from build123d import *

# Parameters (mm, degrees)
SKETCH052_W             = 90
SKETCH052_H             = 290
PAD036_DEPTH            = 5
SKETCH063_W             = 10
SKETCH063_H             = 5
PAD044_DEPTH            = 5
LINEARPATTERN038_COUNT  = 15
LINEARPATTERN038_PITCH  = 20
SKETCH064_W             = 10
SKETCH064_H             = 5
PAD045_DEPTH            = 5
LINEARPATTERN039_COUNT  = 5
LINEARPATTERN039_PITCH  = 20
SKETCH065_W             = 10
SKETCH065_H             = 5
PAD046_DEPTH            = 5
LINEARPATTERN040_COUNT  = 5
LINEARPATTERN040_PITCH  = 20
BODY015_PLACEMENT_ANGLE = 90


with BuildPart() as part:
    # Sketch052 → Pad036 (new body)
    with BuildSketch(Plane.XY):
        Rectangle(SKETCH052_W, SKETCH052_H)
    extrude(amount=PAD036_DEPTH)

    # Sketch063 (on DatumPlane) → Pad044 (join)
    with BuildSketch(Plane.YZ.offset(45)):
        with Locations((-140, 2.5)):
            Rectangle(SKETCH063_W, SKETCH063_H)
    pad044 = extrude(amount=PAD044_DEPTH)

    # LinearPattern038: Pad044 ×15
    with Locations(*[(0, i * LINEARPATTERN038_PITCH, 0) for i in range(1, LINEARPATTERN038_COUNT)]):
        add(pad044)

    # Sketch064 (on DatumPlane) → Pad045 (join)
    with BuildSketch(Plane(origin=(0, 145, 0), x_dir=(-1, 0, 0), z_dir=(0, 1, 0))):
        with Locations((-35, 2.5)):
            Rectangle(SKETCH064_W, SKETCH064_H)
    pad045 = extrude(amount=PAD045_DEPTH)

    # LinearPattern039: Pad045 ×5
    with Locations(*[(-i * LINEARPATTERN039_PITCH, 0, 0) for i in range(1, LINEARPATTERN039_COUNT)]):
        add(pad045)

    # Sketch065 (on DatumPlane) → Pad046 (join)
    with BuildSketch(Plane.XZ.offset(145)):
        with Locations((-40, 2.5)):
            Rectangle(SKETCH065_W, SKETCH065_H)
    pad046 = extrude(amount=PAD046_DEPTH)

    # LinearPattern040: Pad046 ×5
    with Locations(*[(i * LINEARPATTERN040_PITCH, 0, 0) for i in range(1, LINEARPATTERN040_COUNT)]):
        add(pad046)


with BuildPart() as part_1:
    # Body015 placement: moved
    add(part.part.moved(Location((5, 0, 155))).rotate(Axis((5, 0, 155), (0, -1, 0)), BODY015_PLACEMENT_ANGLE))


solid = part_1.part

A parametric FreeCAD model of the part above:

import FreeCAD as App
import Part
import Sketcher

V = App.Vector

doc = App.newDocument("Part")
params = doc.addObject("Spreadsheet::Sheet", "Params")
for row, (alias, value) in enumerate([
    ("sketch1_width", "90 mm"),
    ("sketch1_height", "290 mm"),
    ("pad1_length", "5 mm"),
    ("sketch2_width", "10 mm"),
    ("sketch2_height", "5 mm"),
    ("pad2_length", "5 mm"),
    ("linearpattern_pitch", "20 mm"),
    ("sketch3_width", "10 mm"),
    ("sketch3_height", "5 mm"),
    ("pad3_length", "5 mm"),
    ("linearpattern2_pitch", "20 mm"),
    ("sketch4_width", "10 mm"),
    ("sketch4_height", "5 mm"),
    ("pad4_length", "5 mm"),
    ("linearpattern3_pitch", "20 mm"),
], start=1):
    params.set(f"A{row}", alias)
    params.set(f"B{row}", "=" + value)
    params.setAlias(f"B{row}", alias)

body = doc.addObject("PartDesign::Body", "Body")

# Sketch on XY plane
sketch1 = body.newObject("Sketcher::SketchObject", "Sketch")
sketch1.AttachmentSupport = (doc.getObject("XY_Plane"), [""])
sketch1.MapMode = "FlatFace"
sketch1.addGeometry([
    Part.LineSegment(V(-45, 145, 0), V(-45, -145, 0)),
    Part.LineSegment(V(-45, -145, 0), V(45, -145, 0)),
    Part.LineSegment(V(45, -145, 0), V(45, 145, 0)),
    Part.LineSegment(V(45, 145, 0), V(-45, 145, 0)),
], False)
sketch1.addConstraint([
    Sketcher.Constraint("Coincident", 0, 2, 1, 1),
    Sketcher.Constraint("Coincident", 1, 2, 2, 1),
    Sketcher.Constraint("Coincident", 2, 2, 3, 1),
    Sketcher.Constraint("Coincident", 3, 2, 0, 1),
    Sketcher.Constraint("Vertical", 0),
    Sketcher.Constraint("Horizontal", 1),
    Sketcher.Constraint("Vertical", 2),
    Sketcher.Constraint("Horizontal", 3),
    Sketcher.Constraint("Symmetric", 0, 2, 2, 2, -1, 1),
    Sketcher.Constraint("DistanceX", 1, 1, 1, 2, 90.0),
    Sketcher.Constraint("DistanceY", 0, 2, 0, 1, 290.0),
])
sketch1.setExpression("Constraints[9]", "Params.sketch1_width")
sketch1.setExpression("Constraints[10]", "Params.sketch1_height")
pad1 = body.newObject("PartDesign::Pad", "Pad")
pad1.Profile = sketch1
pad1.setExpression("Length", "Params.pad1_length")

# Sketch on YZ plane
sketch2 = body.newObject("Sketcher::SketchObject", "Sketch001")
sketch2.AttachmentSupport = (doc.getObject("YZ_Plane"), [""])
sketch2.MapMode = "FlatFace"
sketch2.AttachmentOffset = App.Placement(V(0, 0, 45), App.Rotation())
sketch2.addGeometry([
    Part.LineSegment(V(-145, 5, 0), V(-145, 0, 0)),
    Part.LineSegment(V(-145, 0, 0), V(-135, 0, 0)),
    Part.LineSegment(V(-135, 0, 0), V(-135, 5, 0)),
    Part.LineSegment(V(-135, 5, 0), V(-145, 5, 0)),
], False)
sketch2.addConstraint([
    Sketcher.Constraint("Coincident", 0, 2, 1, 1),
    Sketcher.Constraint("Coincident", 1, 2, 2, 1),
    Sketcher.Constraint("Coincident", 2, 2, 3, 1),
    Sketcher.Constraint("Coincident", 3, 2, 0, 1),
    Sketcher.Constraint("Vertical", 0),
    Sketcher.Constraint("Horizontal", 1),
    Sketcher.Constraint("Vertical", 2),
    Sketcher.Constraint("Horizontal", 3),
    Sketcher.Constraint("PointOnObject", 0, 2, -1),
    Sketcher.Constraint("DistanceX", 1, 1, 1, 2, 10.0),
    Sketcher.Constraint("DistanceY", 0, 2, 0, 1, 5.0),
    Sketcher.Constraint("DistanceX", 0, 2, -1, 1, 145.0),
])
sketch2.setExpression("Constraints[9]", "Params.sketch2_width")
sketch2.setExpression("Constraints[10]", "Params.sketch2_height")
pad2 = body.newObject("PartDesign::Pad", "Pad001")
pad2.Profile = sketch2
pad2.setExpression("Length", "Params.pad2_length")
doc.recompute()

linearpattern = body.newObject("PartDesign::LinearPattern", "LinearPattern")
linearpattern.Originals = [pad2]
linearpattern.Direction = (doc.getObject("Y_Axis"), [""])
linearpattern.Mode = "offset"
linearpattern.setExpression("Offset", "Params.linearpattern_pitch")
linearpattern.Occurrences = 15
body.Tip = linearpattern

# Sketch on XZ plane
sketch3 = body.newObject("Sketcher::SketchObject", "Sketch002")
sketch3.AttachmentSupport = (doc.getObject("XZ_Plane"), [""])
sketch3.MapMode = "FlatFace"
sketch3.AttachmentOffset = App.Placement(V(0, 0, -145), App.Rotation())
sketch3.addGeometry([
    Part.LineSegment(V(40, 5, 0), V(40, 0, 0)),
    Part.LineSegment(V(40, 0, 0), V(30, 0, 0)),
    Part.LineSegment(V(30, 0, 0), V(30, 5, 0)),
    Part.LineSegment(V(30, 5, 0), V(40, 5, 0)),
], False)
sketch3.addConstraint([
    Sketcher.Constraint("Coincident", 0, 2, 1, 1),
    Sketcher.Constraint("Coincident", 1, 2, 2, 1),
    Sketcher.Constraint("Coincident", 2, 2, 3, 1),
    Sketcher.Constraint("Coincident", 3, 2, 0, 1),
    Sketcher.Constraint("Vertical", 0),
    Sketcher.Constraint("Horizontal", 1),
    Sketcher.Constraint("Vertical", 2),
    Sketcher.Constraint("Horizontal", 3),
    Sketcher.Constraint("PointOnObject", 0, 2, -1),
    Sketcher.Constraint("DistanceX", 1, 2, 1, 1, 10.0),
    Sketcher.Constraint("DistanceY", 0, 2, 0, 1, 5.0),
    Sketcher.Constraint("DistanceX", -1, 1, 0, 2, 40.0),
])
sketch3.setExpression("Constraints[9]", "Params.sketch3_width")
sketch3.setExpression("Constraints[10]", "Params.sketch3_height")
pad3 = body.newObject("PartDesign::Pad", "Pad002")
pad3.Profile = sketch3
pad3.setExpression("Length", "Params.pad3_length")
pad3.Reversed = True
doc.recompute()

linearpattern2 = body.newObject("PartDesign::LinearPattern", "LinearPattern001")
linearpattern2.Originals = [pad3]
linearpattern2.Direction = (doc.getObject("X_Axis"), [""])
linearpattern2.Mode = "offset"
linearpattern2.setExpression("Offset", "Params.linearpattern2_pitch")
linearpattern2.Occurrences = 5
linearpattern2.Reversed = True
body.Tip = linearpattern2

# Sketch on XZ plane
sketch4 = body.newObject("Sketcher::SketchObject", "Sketch003")
sketch4.AttachmentSupport = (doc.getObject("XZ_Plane"), [""])
sketch4.MapMode = "FlatFace"
sketch4.AttachmentOffset = App.Placement(V(0, 0, 145), App.Rotation())
sketch4.addGeometry([
    Part.LineSegment(V(-45, 5, 0), V(-45, 0, 0)),
    Part.LineSegment(V(-45, 0, 0), V(-35, 0, 0)),
    Part.LineSegment(V(-35, 0, 0), V(-35, 5, 0)),
    Part.LineSegment(V(-35, 5, 0), V(-45, 5, 0)),
], False)
sketch4.addConstraint([
    Sketcher.Constraint("Coincident", 0, 2, 1, 1),
    Sketcher.Constraint("Coincident", 1, 2, 2, 1),
    Sketcher.Constraint("Coincident", 2, 2, 3, 1),
    Sketcher.Constraint("Coincident", 3, 2, 0, 1),
    Sketcher.Constraint("Vertical", 0),
    Sketcher.Constraint("Horizontal", 1),
    Sketcher.Constraint("Vertical", 2),
    Sketcher.Constraint("Horizontal", 3),
    Sketcher.Constraint("PointOnObject", 0, 2, -1),
    Sketcher.Constraint("DistanceX", 1, 1, 1, 2, 10.0),
    Sketcher.Constraint("DistanceY", 0, 2, 0, 1, 5.0),
    Sketcher.Constraint("DistanceX", 0, 2, -1, 1, 45.0),
])
sketch4.setExpression("Constraints[9]", "Params.sketch4_width")
sketch4.setExpression("Constraints[10]", "Params.sketch4_height")
pad4 = body.newObject("PartDesign::Pad", "Pad003")
pad4.Profile = sketch4
pad4.setExpression("Length", "Params.pad4_length")
doc.recompute()

linearpattern3 = body.newObject("PartDesign::LinearPattern", "LinearPattern002")
linearpattern3.Originals = [pad4]
linearpattern3.Direction = (doc.getObject("X_Axis"), [""])
linearpattern3.Mode = "offset"
linearpattern3.setExpression("Offset", "Params.linearpattern3_pitch")
linearpattern3.Occurrences = 5
body.Tip = linearpattern3
body2 = doc.addObject("PartDesign::Body", "Body001")
doc.recompute()

body.Placement = App.Placement(V(5, 0, 155), App.Rotation(V(0, -1, 0), 90))
boolean = body2.newObject("PartDesign::Boolean", "Boolean")
boolean.Type = "Fuse"
boolean.addObjects([body])

doc.recompute()
